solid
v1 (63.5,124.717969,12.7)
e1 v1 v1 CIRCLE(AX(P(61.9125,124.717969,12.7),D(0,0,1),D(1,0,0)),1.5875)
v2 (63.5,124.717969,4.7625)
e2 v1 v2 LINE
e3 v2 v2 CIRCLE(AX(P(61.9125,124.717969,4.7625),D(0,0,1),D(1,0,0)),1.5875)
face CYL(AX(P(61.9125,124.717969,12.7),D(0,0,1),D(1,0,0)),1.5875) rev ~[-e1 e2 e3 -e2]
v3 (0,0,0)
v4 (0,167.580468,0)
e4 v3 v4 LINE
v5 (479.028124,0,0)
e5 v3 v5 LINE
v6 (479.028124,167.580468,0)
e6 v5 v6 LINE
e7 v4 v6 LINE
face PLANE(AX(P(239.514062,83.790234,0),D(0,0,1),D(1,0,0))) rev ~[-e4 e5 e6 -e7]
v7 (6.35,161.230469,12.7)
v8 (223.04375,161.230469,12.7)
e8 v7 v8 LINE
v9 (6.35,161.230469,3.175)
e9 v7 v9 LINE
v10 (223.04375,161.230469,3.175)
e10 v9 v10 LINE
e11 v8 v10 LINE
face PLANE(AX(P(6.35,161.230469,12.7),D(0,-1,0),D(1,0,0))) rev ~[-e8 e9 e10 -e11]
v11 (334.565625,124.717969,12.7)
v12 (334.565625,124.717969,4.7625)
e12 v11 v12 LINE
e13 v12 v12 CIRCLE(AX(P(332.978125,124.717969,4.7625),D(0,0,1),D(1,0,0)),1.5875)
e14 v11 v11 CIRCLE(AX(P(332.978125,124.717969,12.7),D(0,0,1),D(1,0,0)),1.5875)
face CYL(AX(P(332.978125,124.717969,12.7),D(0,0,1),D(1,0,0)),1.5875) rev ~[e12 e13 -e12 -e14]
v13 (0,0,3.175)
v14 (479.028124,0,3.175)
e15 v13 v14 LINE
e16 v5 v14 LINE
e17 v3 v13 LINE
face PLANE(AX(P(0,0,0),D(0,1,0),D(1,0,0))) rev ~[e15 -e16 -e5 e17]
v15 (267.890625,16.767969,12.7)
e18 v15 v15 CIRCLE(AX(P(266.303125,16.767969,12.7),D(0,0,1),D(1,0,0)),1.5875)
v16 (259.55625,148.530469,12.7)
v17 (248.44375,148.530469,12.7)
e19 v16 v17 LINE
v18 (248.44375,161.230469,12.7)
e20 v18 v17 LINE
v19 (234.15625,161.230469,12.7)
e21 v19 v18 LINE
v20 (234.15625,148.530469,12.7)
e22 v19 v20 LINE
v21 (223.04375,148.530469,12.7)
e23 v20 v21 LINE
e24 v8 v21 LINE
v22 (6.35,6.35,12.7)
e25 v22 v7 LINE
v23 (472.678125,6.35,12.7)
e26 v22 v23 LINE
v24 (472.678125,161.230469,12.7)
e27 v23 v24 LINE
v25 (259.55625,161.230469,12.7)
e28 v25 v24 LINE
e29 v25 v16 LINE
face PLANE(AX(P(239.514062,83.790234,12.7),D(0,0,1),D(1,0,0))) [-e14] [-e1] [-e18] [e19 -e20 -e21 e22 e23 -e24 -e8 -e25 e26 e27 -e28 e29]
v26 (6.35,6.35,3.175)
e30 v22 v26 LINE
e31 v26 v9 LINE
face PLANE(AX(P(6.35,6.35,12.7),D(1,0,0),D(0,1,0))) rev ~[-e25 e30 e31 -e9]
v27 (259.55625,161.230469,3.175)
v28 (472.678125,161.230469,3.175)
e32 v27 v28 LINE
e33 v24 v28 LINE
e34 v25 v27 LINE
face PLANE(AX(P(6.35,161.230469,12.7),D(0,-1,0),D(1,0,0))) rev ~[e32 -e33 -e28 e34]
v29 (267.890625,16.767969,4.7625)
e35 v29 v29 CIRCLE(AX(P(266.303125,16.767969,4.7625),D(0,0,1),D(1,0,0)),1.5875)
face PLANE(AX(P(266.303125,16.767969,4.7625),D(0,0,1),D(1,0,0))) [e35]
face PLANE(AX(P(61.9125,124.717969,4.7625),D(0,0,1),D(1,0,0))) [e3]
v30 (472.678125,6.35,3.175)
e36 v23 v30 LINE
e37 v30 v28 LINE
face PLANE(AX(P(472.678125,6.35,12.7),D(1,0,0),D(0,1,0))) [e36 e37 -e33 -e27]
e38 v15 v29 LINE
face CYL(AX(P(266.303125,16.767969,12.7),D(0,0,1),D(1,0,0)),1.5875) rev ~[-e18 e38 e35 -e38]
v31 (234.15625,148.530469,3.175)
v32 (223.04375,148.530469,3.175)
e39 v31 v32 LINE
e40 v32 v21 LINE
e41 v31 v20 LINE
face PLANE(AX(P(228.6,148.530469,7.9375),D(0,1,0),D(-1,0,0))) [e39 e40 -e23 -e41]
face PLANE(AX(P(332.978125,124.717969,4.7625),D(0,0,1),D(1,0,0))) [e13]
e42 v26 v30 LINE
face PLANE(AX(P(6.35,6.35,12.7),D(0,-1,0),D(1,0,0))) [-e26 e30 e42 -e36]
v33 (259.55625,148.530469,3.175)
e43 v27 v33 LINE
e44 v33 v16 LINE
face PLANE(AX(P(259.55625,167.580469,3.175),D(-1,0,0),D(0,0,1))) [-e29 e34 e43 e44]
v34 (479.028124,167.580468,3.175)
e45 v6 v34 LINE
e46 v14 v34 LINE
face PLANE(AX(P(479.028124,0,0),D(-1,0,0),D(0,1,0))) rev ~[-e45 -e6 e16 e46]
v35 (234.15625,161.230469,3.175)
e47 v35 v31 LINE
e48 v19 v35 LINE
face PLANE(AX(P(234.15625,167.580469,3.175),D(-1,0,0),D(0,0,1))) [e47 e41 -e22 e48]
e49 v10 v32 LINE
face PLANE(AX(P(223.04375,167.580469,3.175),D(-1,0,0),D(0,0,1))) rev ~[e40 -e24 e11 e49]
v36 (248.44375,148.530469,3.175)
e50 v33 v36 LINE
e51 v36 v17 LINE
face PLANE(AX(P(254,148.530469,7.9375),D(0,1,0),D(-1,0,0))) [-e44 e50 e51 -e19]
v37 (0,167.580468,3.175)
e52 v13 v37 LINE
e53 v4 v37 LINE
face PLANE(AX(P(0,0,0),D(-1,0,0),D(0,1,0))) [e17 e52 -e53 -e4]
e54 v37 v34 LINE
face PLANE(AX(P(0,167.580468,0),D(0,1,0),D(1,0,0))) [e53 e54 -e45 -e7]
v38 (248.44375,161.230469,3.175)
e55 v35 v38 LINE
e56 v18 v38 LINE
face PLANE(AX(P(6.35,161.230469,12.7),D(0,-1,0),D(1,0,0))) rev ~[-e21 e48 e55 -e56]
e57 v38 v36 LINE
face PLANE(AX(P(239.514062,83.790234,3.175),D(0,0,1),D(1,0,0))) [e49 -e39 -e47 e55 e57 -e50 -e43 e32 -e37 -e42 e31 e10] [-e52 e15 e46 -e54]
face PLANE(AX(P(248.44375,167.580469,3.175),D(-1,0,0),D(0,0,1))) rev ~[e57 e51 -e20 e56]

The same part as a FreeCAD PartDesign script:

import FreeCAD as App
import Part
import Sketcher
Q = App.Units.Quantity

doc = App.newDocument("Part")
body = doc.addObject("PartDesign::Body", "Body")

sketch1 = body.newObject("Sketcher::SketchObject", "Sketch")
sketch1.AttachmentSupport = (doc.getObject("XY_Plane"), [""])
sketch1.MapMode = "FlatFace"
sketch1.addGeometry(Part.LineSegment(App.Vector(0, 168, 0), App.Vector(0, 0, 0)), False)
sketch1.addGeometry(Part.LineSegment(App.Vector(0, 0, 0), App.Vector(479, 0, 0)), False)
sketch1.addGeometry(Part.LineSegment(App.Vector(479, 0, 0), App.Vector(479, 168, 0)), False)
sketch1.addGeometry(Part.LineSegment(App.Vector(479, 168, 0), App.Vector(0, 168, 0)), False)
sketch1.addConstraint(Sketcher.Constraint("Coincident", 0, 2, 1, 1))
sketch1.addConstraint(Sketcher.Constraint("Coincident", 1, 2, 2, 1))
sketch1.addConstraint(Sketcher.Constraint("Coincident", 2, 2, 3, 1))
sketch1.addConstraint(Sketcher.Constraint("Coincident", 3, 2, 0, 1))
sketch1.addConstraint(Sketcher.Constraint("Vertical", 0))
sketch1.addConstraint(Sketcher.Constraint("Horizontal", 1))
sketch1.addConstraint(Sketcher.Constraint("Vertical", 2))
sketch1.addConstraint(Sketcher.Constraint("Horizontal", 3))
sketch1.addConstraint(Sketcher.Constraint("Coincident", 0, 2, -1, 1))
sketch1.addConstraint(Sketcher.Constraint("DistanceX", 1, 1, 1, 2, Q("18.859375 in")))
sketch1.addConstraint(Sketcher.Constraint("DistanceY", 0, 2, 0, 1, Q("167.580469 mm")))
pad1 = body.newObject("PartDesign::Pad", "Pad")
pad1.Profile = sketch1
pad1.Length = Q("0.5 in")

sketch2 = body.newObject("Sketcher::SketchObject", "Sketch001")
sketch2.AttachmentSupport = (doc.getObject("XY_Plane"), [""])
sketch2.MapMode = "FlatFace"
sketch2.AttachmentOffset = App.Placement(App.Vector(0, 0, 0.5 * 25.4), App.Rotation())
sketch2.addGeometry(Part.LineSegment(App.Vector(0, 168, 0), App.Vector(0, 0, 0)), False)
sketch2.addGeometry(Part.LineSegment(App.Vector(0, 0, 0), App.Vector(479, 0, 0)), False)
sketch2.addGeometry(Part.LineSegment(App.Vector(479, 0, 0), App.Vector(479, 168, 0)), False)
sketch2.addGeometry(Part.LineSegment(App.Vector(479, 168, 0), App.Vector(0, 168, 0)), False)
sketch2.addGeometry(Part.LineSegment(App.Vector(473, 6, 0), App.Vector(6, 6, 0)), False)
sketch2.addGeometry(Part.LineSegment(App.Vector(6, 6, 0), App.Vector(6, 161, 0)), False)
sketch2.addGeometry(Part.LineSegment(App.Vector(6, 161, 0), App.Vector(473, 161, 0)), False)
sketch2.addGeometry(Part.LineSegment(App.Vector(473, 161, 0), App.Vector(473, 6, 0)), False)
sketch2.addConstraint(Sketcher.Constraint("Coincident", 0, 2, 1, 1))
sketch2.addConstraint(Sketcher.Constraint("Coincident", 1, 2, 2, 1))
sketch2.addConstraint(Sketcher.Constraint("Coincident", 2, 2, 3, 1))
sketch2.addConstraint(Sketcher.Constraint("Coincident", 3, 2, 0, 1))
sketch2.addConstraint(Sketcher.Constraint("Coincident", 4, 2, 5, 1))
sketch2.addConstraint(Sketcher.Constraint("Coincident", 5, 2, 6, 1))
sketch2.addConstraint(Sketcher.Constraint("Coincident", 6, 2, 7, 1))
sketch2.addConstraint(Sketcher.Constraint("Coincident", 7, 2, 4, 1))
sketch2.addConstraint(Sketcher.Constraint("Vertical", 0))
sketch2.addConstraint(Sketcher.Constraint("Horizontal", 1))
sketch2.addConstraint(Sketcher.Constraint("Vertical", 2))
sketch2.addConstraint(Sketcher.Constraint("Horizontal", 3))
sketch2.addConstraint(Sketcher.Constraint("Horizontal", 4))
sketch2.addConstraint(Sketcher.Constraint("Vertical", 5))
sketch2.addConstraint(Sketcher.Constraint("Horizontal", 6))
sketch2.addConstraint(Sketcher.Constraint("Vertical", 7))
sketch2.addConstraint(Sketcher.Constraint("Coincident", 0, 2, -1, 1))
sketch2.addConstraint(Sketcher.Constraint("DistanceX", 1, 1, 1, 2, Q("18.859375 in")))
sketch2.addConstraint(Sketcher.Constraint("DistanceX", 4, 2, 4, 1, Q("18.359375 in")))
sketch2.addConstraint(Sketcher.Constraint("DistanceX", -1, 1, 4, 2, Q("0.25 in")))
sketch2.addConstraint(Sketcher.Constraint("DistanceY", -1, 1, 4, 2, Q("0.25 in")))
sketch2.addConstraint(Sketcher.Constraint("DistanceY", 5, 2, 3, 2, Q("0.25 in")))
sketch2.addConstraint(Sketcher.Constraint("DistanceY", 0, 2, 0, 1, Q("167.580469 mm")))
pocket1 = body.newObject("PartDesign::Pocket", "Pocket")
pocket1.Profile = sketch2
pocket1.Length = Q("0.375 in")

sketch3 = body.newObject("Sketcher::SketchObject", "Sketch002")
sketch3.AttachmentSupport = (doc.getObject("XZ_Plane"), [""])
sketch3.MapMode = "FlatFace"
sketch3.AttachmentOffset = App.Placement(App.Vector(0, 0, -167.580469), App.Rotation())
sketch3.addGeometry(Part.LineSegment(App.Vector(234, 13, 0), App.Vector(234, 3, 0)), False)
sketch3.addGeometry(Part.LineSegment(App.Vector(234, 3, 0), App.Vector(223, 3, 0)), False)
sketch3.addGeometry(Part.LineSegment(App.Vector(223, 3, 0), App.Vector(223, 13, 0)), False)
sketch3.addGeometry(Part.LineSegment(App.Vector(223, 13, 0), App.Vector(234, 13, 0)), False)
sketch3.addGeometry(Part.LineSegment(App.Vector(260, 13, 0), App.Vector(260, 3, 0)), False)
sketch3.addGeometry(Part.LineSegment(App.Vector(260, 3, 0), App.Vector(248, 3, 0)), False)
sketch3.addGeometry(Part.LineSegment(App.Vector(248, 3, 0), App.Vector(248, 13, 0)), False)
sketch3.addGeometry(Part.LineSegment(App.Vector(248, 13, 0), App.Vector(260, 13, 0)), False)
sketch3.addConstraint(Sketcher.Constraint("Coincident", 0, 2, 1, 1))
sketch3.addConstraint(Sketcher.Constraint("Coincident", 1, 2, 2, 1))
sketch3.addConstraint(Sketcher.Constraint("Coincident", 2, 2, 3, 1))
sketch3.addConstraint(Sketcher.Constraint("Coincident", 3, 2, 0, 1))
sketch3.addConstraint(Sketcher.Constraint("Coincident", 4, 2, 5, 1))
sketch3.addConstraint(Sketcher.Constraint("Coincident", 5, 2, 6, 1))
sketch3.addConstraint(Sketcher.Constraint("Coincident", 6, 2, 7, 1))
sketch3.addConstraint(Sketcher.Constraint("Coincident", 7, 2, 4, 1))
sketch3.addConstraint(Sketcher.Constraint("Vertical", 0))
sketch3.addConstraint(Sketcher.Constraint("Horizontal", 1))
sketch3.addConstraint(Sketcher.Constraint("Vertical", 2))
sketch3.addConstraint(Sketcher.Constraint("Horizontal", 3))
sketch3.addConstraint(Sketcher.Constraint("Vertical", 4))
sketch3.addConstraint(Sketcher.Constraint("Horizontal", 5))
sketch3.addConstraint(Sketcher.Constraint("Vertical", 6))
sketch3.addConstraint(Sketcher.Constraint("Horizontal", 7))
sketch3.addConstraint(Sketcher.Constraint("Horizontal", 1, 2, 4, 2))
sketch3.addConstraint(Sketcher.Constraint("Horizontal", 3, 2, 6, 2))
sketch3.addConstraint(Sketcher.Constraint("Equal", 3, 5))
sketch3.addConstraint(Sketcher.Constraint("DistanceX", 0, 2, 4, 2, Q("1 in")))
sketch3.addConstraint(Sketcher.Constraint("DistanceY", -1, 1, 2, 2, Q("0.5 in")))
sketch3.addConstraint(Sketcher.Constraint("DistanceX", 1, 2, 1, 1, Q("0.4375 in")))
sketch3.addConstraint(Sketcher.Constraint("DistanceY", 0, 2, 0, 1, Q("0.375 in")))
sketch3.addConstraint(Sketcher.Constraint("DistanceX", -1, 1, 0, 2, Q("9.21875 in")))
pocket2 = body.newObject("PartDesign::Pocket", "Pocket001")
pocket2.Profile = sketch3
pocket2.Length = Q("0.75 in")
pocket2.Reversed = True

sketch4 = body.newObject("Sketcher::SketchObject", "Sketch003")
sketch4.AttachmentSupport = (doc.getObject("XY_Plane"), [""])
sketch4.MapMode = "FlatFace"
sketch4.AttachmentOffset = App.Placement(App.Vector(0, 0, 0.5 * 25.4), App.Rotation())
sketch4.addGeometry(Part.Circle(App.Vector(61.9, 124.7, 0), App.Vector(0, 0, 1), 1.6), False)
sketch4.addGeometry(Part.Circle(App.Vector(333, 124.7, 0), App.Vector(0, 0, 1), 1.6), False)
sketch4.addGeometry(Part.Circle(App.Vector(266.3, 16.8, 0), App.Vector(0, 0, 1), 1.6), False)
sketch4.addConstraint(Sketcher.Constraint("Equal", 0, 1))
sketch4.addConstraint(Sketcher.Constraint("Equal", 1, 2))
sketch4.addConstraint(Sketcher.Constraint("Horizontal", 0, 3, 1, 3))
sketch4.addConstraint(Sketcher.Constraint("Diameter", 0, Q("0.125 in")))
sketch4.addConstraint(Sketcher.Constraint("DistanceY", 2, 3, 1, 3, Q("4.25 in")))
sketch4.addConstraint(Sketcher.Constraint("DistanceX", -1, 1, 0, 3, Q("2.4375 in")))
sketch4.addConstraint(Sketcher.Constraint("DistanceX", -1, 1, 1, 3, Q("13.109375 in")))
sketch4.addConstraint(Sketcher.Constraint("DistanceX", -1, 1, 2, 3, Q("10.484375 in")))
sketch4.addConstraint(Sketcher.Constraint("DistanceY", -1, 1, 0, 3, Q("124.717969 mm")))
pocket3 = body.newObject("PartDesign::Pocket", "Pocket002")
pocket3.Profile = sketch4
pocket3.Length = Q("0.3125 in")

doc.recompute()
